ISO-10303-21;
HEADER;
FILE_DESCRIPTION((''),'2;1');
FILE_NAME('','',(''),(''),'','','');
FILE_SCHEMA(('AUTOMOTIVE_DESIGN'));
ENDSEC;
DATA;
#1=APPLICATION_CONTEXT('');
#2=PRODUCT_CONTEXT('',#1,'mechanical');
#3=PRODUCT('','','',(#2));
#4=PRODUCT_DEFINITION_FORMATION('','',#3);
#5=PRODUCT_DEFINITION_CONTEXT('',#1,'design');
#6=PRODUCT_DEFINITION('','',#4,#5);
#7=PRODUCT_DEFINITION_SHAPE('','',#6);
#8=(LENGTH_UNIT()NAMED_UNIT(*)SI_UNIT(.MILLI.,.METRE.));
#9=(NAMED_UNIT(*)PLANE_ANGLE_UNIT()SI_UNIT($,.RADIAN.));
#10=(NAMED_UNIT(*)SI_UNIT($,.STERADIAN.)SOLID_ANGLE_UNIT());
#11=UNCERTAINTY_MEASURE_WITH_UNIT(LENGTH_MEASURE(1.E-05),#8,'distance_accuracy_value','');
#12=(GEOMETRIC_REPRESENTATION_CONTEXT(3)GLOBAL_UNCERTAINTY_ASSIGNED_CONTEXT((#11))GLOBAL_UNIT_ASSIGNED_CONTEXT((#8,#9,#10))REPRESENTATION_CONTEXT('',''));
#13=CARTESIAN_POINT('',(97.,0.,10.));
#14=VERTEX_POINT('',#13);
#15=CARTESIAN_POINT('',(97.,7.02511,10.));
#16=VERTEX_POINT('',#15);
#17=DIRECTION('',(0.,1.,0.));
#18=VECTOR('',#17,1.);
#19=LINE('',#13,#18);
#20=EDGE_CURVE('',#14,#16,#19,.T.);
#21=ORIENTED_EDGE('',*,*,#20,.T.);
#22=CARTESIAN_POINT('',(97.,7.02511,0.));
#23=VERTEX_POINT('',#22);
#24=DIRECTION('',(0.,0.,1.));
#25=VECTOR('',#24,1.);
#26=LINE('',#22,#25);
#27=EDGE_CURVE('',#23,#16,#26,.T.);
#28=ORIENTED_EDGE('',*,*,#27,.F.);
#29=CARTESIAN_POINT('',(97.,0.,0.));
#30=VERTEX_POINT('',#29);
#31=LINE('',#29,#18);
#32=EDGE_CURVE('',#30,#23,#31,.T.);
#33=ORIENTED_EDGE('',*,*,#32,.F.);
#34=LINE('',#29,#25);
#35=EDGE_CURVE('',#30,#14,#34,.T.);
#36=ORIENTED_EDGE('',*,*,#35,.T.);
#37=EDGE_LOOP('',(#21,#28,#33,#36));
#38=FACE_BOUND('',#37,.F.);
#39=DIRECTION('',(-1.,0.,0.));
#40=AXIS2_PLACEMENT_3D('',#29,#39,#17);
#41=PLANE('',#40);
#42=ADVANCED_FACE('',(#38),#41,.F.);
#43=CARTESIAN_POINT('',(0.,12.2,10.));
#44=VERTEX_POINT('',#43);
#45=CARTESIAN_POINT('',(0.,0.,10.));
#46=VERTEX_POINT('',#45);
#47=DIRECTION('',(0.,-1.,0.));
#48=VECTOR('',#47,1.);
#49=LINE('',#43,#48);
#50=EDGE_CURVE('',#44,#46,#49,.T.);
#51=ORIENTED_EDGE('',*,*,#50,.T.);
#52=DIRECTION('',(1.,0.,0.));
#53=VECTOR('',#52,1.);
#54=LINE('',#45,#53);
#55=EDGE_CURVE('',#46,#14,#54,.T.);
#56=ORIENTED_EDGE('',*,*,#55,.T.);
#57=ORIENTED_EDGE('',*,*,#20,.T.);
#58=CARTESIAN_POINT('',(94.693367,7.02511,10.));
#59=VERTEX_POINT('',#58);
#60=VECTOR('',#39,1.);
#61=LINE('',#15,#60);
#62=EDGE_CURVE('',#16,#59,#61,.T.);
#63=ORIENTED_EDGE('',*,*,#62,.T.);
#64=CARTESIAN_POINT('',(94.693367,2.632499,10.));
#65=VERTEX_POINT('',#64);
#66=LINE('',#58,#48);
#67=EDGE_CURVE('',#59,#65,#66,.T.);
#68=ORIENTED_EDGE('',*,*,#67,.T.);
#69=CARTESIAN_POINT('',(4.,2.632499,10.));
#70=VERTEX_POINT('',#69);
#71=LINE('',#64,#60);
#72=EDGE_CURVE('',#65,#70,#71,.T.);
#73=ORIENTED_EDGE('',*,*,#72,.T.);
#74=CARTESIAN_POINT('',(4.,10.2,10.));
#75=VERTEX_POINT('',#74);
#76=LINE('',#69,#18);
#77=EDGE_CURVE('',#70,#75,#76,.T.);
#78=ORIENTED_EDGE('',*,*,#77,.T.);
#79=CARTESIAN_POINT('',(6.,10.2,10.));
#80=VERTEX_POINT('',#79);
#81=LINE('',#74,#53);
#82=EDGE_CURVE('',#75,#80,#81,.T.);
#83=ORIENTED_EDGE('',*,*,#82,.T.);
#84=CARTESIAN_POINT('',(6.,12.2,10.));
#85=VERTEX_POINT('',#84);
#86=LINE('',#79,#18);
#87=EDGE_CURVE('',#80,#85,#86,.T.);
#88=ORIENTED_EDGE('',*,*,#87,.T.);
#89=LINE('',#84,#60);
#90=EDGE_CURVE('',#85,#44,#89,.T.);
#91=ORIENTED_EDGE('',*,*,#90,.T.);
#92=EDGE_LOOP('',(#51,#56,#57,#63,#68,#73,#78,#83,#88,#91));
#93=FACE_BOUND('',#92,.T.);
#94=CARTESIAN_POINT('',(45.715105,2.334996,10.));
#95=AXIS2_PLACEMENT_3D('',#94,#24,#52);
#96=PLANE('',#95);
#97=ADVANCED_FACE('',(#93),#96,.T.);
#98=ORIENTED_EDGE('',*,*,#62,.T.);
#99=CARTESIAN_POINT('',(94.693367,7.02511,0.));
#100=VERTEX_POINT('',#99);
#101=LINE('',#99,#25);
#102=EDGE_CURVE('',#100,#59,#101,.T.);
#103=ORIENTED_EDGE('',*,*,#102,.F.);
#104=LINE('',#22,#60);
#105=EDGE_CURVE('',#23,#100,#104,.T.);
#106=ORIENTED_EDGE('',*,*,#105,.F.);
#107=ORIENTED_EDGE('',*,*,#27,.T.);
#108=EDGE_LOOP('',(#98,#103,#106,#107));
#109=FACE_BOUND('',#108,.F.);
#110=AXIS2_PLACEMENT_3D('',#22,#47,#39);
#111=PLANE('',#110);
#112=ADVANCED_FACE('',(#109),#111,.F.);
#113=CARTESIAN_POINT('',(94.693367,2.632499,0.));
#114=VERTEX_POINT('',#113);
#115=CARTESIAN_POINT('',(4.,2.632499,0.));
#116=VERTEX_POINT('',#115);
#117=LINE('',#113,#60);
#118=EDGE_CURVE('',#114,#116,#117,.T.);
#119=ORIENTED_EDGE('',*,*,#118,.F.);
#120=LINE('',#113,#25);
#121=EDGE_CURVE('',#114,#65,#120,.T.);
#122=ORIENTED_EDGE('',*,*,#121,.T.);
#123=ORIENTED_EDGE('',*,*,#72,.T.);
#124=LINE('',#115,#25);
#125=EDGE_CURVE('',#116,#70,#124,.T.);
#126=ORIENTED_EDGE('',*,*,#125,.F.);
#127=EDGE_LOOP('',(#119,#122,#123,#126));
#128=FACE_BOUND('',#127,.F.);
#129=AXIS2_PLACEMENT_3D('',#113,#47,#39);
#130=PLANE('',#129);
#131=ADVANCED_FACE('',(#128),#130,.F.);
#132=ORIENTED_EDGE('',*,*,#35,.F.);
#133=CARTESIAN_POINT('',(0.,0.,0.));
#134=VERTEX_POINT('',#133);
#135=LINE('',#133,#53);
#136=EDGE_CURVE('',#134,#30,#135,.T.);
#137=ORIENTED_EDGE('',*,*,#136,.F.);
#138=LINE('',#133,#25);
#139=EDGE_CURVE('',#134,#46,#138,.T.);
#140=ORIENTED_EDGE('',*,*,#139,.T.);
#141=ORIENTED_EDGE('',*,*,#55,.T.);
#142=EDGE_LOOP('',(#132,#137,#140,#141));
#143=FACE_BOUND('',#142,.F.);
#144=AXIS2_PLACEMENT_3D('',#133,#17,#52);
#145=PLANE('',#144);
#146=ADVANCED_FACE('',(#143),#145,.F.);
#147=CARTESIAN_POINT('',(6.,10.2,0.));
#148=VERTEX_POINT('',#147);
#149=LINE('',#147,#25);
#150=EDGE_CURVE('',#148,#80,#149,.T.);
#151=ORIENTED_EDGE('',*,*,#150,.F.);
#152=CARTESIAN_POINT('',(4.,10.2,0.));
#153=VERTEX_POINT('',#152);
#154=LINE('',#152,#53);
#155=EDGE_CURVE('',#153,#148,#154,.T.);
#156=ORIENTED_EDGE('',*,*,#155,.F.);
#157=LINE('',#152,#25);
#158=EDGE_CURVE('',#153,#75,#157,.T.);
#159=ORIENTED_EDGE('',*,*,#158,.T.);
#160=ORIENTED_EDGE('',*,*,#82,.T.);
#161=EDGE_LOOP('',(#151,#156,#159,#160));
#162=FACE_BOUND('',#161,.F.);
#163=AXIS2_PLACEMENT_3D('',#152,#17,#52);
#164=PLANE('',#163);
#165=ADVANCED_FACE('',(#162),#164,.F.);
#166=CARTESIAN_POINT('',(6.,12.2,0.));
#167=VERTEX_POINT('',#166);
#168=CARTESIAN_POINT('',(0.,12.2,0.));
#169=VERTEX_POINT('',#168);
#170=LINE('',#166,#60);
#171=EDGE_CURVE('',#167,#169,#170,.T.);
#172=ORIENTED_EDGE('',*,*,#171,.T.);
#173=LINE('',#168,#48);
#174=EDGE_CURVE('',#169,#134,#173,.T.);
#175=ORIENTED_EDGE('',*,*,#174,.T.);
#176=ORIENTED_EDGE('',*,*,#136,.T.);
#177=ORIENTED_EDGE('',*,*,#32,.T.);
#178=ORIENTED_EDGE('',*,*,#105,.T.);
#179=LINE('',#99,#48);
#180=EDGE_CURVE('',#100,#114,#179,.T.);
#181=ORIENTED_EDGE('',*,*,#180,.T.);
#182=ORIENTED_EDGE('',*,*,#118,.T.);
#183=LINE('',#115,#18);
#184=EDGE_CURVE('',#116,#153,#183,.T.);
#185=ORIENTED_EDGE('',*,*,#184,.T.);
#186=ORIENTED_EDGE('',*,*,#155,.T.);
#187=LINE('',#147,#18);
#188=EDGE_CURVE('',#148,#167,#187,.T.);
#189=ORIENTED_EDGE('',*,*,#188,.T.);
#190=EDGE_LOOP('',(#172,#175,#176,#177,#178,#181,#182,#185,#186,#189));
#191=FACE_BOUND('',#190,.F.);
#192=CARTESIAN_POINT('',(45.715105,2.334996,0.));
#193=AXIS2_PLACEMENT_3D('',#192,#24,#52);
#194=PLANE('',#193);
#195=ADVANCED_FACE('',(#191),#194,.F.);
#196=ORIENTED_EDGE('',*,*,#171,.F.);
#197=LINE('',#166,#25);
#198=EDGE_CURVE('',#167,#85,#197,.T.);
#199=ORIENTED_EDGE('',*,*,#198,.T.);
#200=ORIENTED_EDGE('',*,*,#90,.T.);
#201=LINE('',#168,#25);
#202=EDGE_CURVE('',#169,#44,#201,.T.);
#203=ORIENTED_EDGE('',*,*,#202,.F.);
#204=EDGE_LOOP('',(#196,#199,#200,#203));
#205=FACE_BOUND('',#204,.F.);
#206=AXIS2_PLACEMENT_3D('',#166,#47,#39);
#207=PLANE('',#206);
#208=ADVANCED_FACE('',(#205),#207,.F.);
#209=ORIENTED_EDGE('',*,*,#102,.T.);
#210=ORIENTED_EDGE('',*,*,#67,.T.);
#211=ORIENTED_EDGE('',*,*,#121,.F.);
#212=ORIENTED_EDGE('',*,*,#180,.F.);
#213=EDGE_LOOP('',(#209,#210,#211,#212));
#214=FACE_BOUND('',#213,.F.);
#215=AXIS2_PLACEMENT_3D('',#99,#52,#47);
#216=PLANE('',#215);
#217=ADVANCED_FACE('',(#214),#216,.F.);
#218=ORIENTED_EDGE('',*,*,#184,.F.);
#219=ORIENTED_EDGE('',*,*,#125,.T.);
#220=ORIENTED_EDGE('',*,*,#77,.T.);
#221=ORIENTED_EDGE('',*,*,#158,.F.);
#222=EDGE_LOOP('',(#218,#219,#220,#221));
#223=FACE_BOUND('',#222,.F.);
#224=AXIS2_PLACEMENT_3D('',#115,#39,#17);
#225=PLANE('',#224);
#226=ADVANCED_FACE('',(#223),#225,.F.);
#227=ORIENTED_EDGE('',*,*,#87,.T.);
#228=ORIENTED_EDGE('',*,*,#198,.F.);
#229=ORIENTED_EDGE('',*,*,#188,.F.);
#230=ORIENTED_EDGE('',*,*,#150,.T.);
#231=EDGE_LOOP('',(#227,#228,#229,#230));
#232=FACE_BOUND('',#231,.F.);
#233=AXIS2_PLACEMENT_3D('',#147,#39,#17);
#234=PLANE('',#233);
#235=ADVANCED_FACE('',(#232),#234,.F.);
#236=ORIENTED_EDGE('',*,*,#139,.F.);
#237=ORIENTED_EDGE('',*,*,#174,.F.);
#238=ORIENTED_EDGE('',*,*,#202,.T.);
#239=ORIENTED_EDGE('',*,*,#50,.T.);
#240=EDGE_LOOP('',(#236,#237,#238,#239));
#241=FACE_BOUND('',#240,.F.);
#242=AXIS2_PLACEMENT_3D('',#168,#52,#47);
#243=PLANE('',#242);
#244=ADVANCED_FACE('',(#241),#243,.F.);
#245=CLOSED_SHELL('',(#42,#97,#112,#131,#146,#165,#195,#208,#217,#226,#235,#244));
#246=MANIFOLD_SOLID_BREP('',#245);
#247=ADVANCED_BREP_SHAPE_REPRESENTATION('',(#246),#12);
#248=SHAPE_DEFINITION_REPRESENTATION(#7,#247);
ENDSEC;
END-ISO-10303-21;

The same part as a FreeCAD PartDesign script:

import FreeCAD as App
import Part
import Sketcher

V = App.Vector
Q = App.Units.Quantity

doc = App.newDocument("Part")
params = doc.addObject("Spreadsheet::Sheet", "Params")
for row, (alias, value) in enumerate([
    ("sketch1_width", "97 mm"),
    ("sketch1_width2", "2 mm"),
    ("sketch1_width3", "6 mm"),
    ("sketch1_height", "12.2 mm"),
    ("pad1_length", "10 mm"),
], start=1):
    params.set(f"A{row}", alias)
    params.set(f"B{row}", "=" + value)
    params.setAlias(f"B{row}", alias)

body = doc.addObject("PartDesign::Body", "Body")

# Sketch on XY plane
sketch1 = body.newObject("Sketcher::SketchObject", "Sketch")
sketch1.AttachmentSupport = (doc.getObject("XY_Plane"), [""])
sketch1.MapMode = "FlatFace"
sketch1.addGeometry(Part.LineSegment(V(0, 0, 0), V(97, 0, 0)), False)
sketch1.addGeometry(Part.LineSegment(V(97, 0, 0), V(97, 7, 0)), False)
sketch1.addGeometry(Part.LineSegment(V(97, 7, 0), V(94.7, 7, 0)), False)
sketch1.addGeometry(Part.LineSegment(V(94.7, 7, 0), V(94.7, 2.6, 0)), False)
sketch1.addGeometry(Part.LineSegment(V(94.7, 2.6, 0), V(4, 2.6, 0)), False)
sketch1.addGeometry(Part.LineSegment(V(4, 2.6, 0), V(4, 10.2, 0)), False)
sketch1.addGeometry(Part.LineSegment(V(4, 10.2, 0), V(6, 10.2, 0)), False)
sketch1.addGeometry(Part.LineSegment(V(6, 10.2, 0), V(6, 12.2, 0)), False)
sketch1.addGeometry(Part.LineSegment(V(6, 12.2, 0), V(0, 12.2, 0)), False)
sketch1.addGeometry(Part.LineSegment(V(0, 12.2, 0), V(0, 0, 0)), False)
sketch1.addConstraint(Sketcher.Constraint("Coincident", 0, 2, 1, 1))
sketch1.addConstraint(Sketcher.Constraint("Coincident", 1, 2, 2, 1))
sketch1.addConstraint(Sketcher.Constraint("Coincident", 2, 2, 3, 1))
sketch1.addConstraint(Sketcher.Constraint("Coincident", 3, 2, 4, 1))
sketch1.addConstraint(Sketcher.Constraint("Coincident", 4, 2, 5, 1))
sketch1.addConstraint(Sketcher.Constraint("Coincident", 5, 2, 6, 1))
sketch1.addConstraint(Sketcher.Constraint("Coincident", 6, 2, 7, 1))
sketch1.addConstraint(Sketcher.Constraint("Coincident", 7, 2, 8, 1))
sketch1.addConstraint(Sketcher.Constraint("Coincident", 8, 2, 9, 1))
sketch1.addConstraint(Sketcher.Constraint("Coincident", 9, 2, 0, 1))
sketch1.addConstraint(Sketcher.Constraint("Horizontal", 0))
sketch1.addConstraint(Sketcher.Constraint("Vertical", 1))
sketch1.addConstraint(Sketcher.Constraint("Horizontal", 2))
sketch1.addConstraint(Sketcher.Constraint("Vertical", 3))
sketch1.addConstraint(Sketcher.Constraint("Horizontal", 4))
sketch1.addConstraint(Sketcher.Constraint("Vertical", 5))
sketch1.addConstraint(Sketcher.Constraint("Horizontal", 6))
sketch1.addConstraint(Sketcher.Constraint("Vertical", 7))
sketch1.addConstraint(Sketcher.Constraint("Horizontal", 8))
sketch1.addConstraint(Sketcher.Constraint("Vertical", 9))
sketch1.addConstraint(Sketcher.Constraint("Coincident", 9, 2, -1, 1))
sketch1.addConstraint(Sketcher.Constraint("Equal", 6, 7))
sketch1.addConstraint(Sketcher.Constraint("DistanceX", 0, 1, 0, 2, Q("97 mm")))
sketch1.addConstraint(Sketcher.Constraint("DistanceX", 6, 1, 6, 2, Q("2 mm")))
sketch1.addConstraint(Sketcher.Constraint("DistanceX", 8, 2, 8, 1, Q("6 mm")))
sketch1.addConstraint(Sketcher.Constraint("DistanceY", 9, 2, 9, 1, Q("12.2 mm")))
sketch1.addConstraint(Sketcher.Constraint("DistanceY", 5, 1, 5, 2, Q("7.567501 mm")))
sketch1.addConstraint(Sketcher.Constraint("DistanceY", 1, 1, 1, 2, Q("7.02511 mm")))
sketch1.addConstraint(Sketcher.Constraint("DistanceX", 2, 2, 2, 1, Q("2.306633 mm")))
sketch1.setExpression("Constraints[22]", "Params.sketch1_width")
sketch1.setExpression("Constraints[23]", "Params.sketch1_width2")
sketch1.setExpression("Constraints[24]", "Params.sketch1_width3")
sketch1.setExpression("Constraints[25]", "Params.sketch1_height")
pad1 = body.newObject("PartDesign::Pad", "Pad")
pad1.Profile = sketch1
pad1.setExpression("Length", "Params.pad1_length")

doc.recompute()
